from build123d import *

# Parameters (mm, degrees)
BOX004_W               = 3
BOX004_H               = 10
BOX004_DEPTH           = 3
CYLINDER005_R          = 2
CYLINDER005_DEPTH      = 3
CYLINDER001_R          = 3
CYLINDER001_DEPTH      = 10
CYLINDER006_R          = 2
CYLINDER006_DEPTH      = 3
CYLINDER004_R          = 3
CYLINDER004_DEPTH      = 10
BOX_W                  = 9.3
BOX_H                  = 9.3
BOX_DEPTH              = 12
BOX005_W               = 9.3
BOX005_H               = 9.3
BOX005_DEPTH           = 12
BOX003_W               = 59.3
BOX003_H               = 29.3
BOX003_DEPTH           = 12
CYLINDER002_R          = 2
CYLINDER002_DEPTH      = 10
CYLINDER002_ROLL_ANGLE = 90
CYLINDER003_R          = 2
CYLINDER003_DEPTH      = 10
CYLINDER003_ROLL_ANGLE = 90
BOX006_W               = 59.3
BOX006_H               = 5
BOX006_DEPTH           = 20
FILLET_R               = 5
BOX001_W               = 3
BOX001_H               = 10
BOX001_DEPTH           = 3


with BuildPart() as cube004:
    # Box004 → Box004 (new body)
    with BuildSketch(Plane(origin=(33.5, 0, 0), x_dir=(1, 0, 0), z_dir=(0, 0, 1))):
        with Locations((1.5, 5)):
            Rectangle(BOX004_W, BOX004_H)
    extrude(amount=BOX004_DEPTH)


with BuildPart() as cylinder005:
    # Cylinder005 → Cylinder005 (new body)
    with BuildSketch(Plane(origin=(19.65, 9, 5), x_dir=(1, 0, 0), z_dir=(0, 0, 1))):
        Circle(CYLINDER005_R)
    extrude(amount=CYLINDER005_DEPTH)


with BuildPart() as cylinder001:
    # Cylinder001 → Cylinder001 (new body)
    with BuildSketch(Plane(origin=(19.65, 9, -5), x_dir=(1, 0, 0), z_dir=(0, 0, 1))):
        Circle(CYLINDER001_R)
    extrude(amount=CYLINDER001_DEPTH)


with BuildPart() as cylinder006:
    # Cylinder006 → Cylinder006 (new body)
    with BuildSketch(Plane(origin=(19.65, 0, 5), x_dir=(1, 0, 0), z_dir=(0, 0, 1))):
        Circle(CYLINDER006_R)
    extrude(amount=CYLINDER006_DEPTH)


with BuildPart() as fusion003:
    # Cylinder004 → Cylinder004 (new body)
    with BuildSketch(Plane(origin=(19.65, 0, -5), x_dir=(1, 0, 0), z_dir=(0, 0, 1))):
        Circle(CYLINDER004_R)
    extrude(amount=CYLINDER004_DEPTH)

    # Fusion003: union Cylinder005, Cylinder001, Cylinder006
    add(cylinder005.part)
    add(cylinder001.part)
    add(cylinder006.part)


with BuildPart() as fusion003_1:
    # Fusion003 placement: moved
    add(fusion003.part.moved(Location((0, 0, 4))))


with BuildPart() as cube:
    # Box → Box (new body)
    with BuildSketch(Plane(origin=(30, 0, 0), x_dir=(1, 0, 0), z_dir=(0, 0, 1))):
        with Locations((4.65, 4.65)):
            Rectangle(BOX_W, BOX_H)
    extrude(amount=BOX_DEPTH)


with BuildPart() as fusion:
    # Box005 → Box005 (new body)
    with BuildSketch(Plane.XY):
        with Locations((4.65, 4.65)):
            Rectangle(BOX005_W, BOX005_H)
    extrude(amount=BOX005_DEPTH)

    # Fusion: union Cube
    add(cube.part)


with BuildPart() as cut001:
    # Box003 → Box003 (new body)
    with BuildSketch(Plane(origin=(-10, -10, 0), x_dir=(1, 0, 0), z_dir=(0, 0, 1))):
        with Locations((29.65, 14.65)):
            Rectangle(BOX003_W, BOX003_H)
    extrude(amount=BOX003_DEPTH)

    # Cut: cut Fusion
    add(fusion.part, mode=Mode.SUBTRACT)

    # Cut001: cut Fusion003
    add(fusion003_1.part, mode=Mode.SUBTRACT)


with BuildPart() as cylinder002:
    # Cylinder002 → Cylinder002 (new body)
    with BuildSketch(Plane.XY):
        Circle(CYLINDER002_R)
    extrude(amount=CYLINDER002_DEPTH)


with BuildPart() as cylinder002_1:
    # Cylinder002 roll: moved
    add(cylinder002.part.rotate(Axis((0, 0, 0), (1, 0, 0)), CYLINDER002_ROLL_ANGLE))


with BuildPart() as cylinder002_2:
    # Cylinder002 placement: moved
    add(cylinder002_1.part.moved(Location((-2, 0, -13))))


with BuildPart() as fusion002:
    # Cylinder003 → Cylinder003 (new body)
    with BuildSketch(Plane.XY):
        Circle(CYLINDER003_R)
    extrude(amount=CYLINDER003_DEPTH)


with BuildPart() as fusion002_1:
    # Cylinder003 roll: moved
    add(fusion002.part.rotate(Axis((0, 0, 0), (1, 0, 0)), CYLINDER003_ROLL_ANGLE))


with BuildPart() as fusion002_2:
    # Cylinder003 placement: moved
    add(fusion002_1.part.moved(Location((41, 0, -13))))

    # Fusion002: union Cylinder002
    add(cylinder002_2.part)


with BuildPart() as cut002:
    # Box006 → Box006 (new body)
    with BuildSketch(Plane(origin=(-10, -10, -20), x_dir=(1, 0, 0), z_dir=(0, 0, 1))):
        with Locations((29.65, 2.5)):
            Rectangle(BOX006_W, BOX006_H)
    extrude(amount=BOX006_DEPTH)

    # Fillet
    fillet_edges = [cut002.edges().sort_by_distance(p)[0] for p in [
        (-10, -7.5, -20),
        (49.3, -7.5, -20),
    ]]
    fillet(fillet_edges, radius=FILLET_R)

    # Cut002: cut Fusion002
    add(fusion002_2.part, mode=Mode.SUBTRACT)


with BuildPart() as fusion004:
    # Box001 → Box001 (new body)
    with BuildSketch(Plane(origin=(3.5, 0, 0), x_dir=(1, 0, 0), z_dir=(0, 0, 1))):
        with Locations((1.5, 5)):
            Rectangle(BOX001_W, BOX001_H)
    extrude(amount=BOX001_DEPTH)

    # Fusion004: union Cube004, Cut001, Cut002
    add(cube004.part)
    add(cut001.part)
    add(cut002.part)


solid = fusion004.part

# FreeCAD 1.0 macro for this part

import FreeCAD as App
import Part
import Sketcher
from FreeCAD import Vector
Q = App.Units.Quantity


def edges_at(feature, points):
    """Names of the edges that pass closest to the given points."""
    edges = feature.Shape.Edges
    near = lambda p: min(range(len(edges)), key=lambda i: edges[i].distToShape(Part.Vertex(*p))[0])
    return sorted({f"Edge{near(p) + 1}" for p in points})


def add_polygon(sketch, points):
    """Adds a closed chain of lines whose ends are joined by coincident constraints."""
    first, n = sketch.GeometryCount, len(points)
    for a, b in zip(points, points[1:] + points[:1]):
        sketch.addGeometry(Part.LineSegment(App.Vector(*a, 0), App.Vector(*b, 0)), False)
    for i in range(n):
        sketch.addConstraint(Sketcher.Constraint("Coincident", first + i, 2, first + (i + 1) % n, 1))

doc = App.newDocument("Part")
params = doc.addObject("Spreadsheet::Sheet", "Params")
for row, (alias, value) in enumerate([
    ("sketch1_width", "3 mm"),
    ("sketch1_height", "10 mm"),
    ("pad1_length", "3 mm"),
    ("sketch2_diameter", "4 mm"),
    ("pad2_length", "3 mm"),
    ("sketch3_diameter", "6 mm"),
    ("pad3_length", "10 mm"),
    ("sketch4_diameter", "4 mm"),
    ("pad4_length", "3 mm"),
    ("sketch5_diameter", "6 mm"),
    ("pad5_length", "10 mm"),
    ("sketch6_width", "9.3 mm"),
    ("pad6_length", "12 mm"),
    ("sketch7_width", "9.3 mm"),
    ("pad7_length", "12 mm"),
    ("sketch8_width", "59.3 mm"),
    ("sketch8_height", "29.3 mm"),
    ("pad8_length", "12 mm"),
    ("sketch9_diameter", "4 mm"),
    ("pad9_length", "10 mm"),
    ("sketch10_diameter", "4 mm"),
    ("pad10_length", "10 mm"),
    ("sketch11_height", "5 mm"),
    ("sketch11_width", "59.3 mm"),
    ("pad11_length", "20 mm"),
    ("fillet_radius", "5 mm"),
    ("sketch12_width", "3 mm"),
    ("sketch12_height", "10 mm"),
    ("pad12_length", "3 mm"),
], start=1):
    params.set(f"A{row}", alias)
    params.set(f"B{row}", "=" + value)
    params.setAlias(f"B{row}", alias)

body = doc.addObject("PartDesign::Body", "Body")

sketch1 = doc.addObject("Sketcher::SketchObject", "Sketch")
body.addObject(sketch1)
sketch1.AttachmentSupport = (doc.XY_Plane, [""])
sketch1.MapMode = "FlatFace"
add_polygon(sketch1, [(33.5, 10), (33.5, 0), (36.5, 0), (36.5, 10)])
sketch1.addConstraint([
    Sketcher.Constraint("Vertical", 0),
    Sketcher.Constraint("Horizontal", 1),
    Sketcher.Constraint("Vertical", 2),
    Sketcher.Constraint("Horizontal", 3),
    Sketcher.Constraint("PointOnObject", 0, 2, -1),
    Sketcher.Constraint("DistanceX", 1, 1, 1, 2, Q("3 mm")),
    Sketcher.Constraint("DistanceY", 0, 2, 0, 1, Q("10 mm")),
    Sketcher.Constraint("DistanceX", -1, 1, 0, 2, Q("33.5 mm")),
])
sketch1.setExpression("Constraints[9]", "Params.sketch1_width")
sketch1.setExpression("Constraints[10]", "Params.sketch1_height")
pad1 = doc.addObject("PartDesign::Pad", "Pad")
body.addObject(pad1)
pad1.Profile = sketch1
pad1.setExpression("Length", "Params.pad1_length")
body2 = doc.addObject("PartDesign::Body", "Body001")

sketch2 = doc.addObject("Sketcher::SketchObject", "Sketch001")
body2.addObject(sketch2)
sketch2.AttachmentSupport = (doc.getObject("XY_Plane001"), [""])
sketch2.MapMode = "FlatFace"
sketch2.AttachmentOffset = App.Placement(Vector(0, 0, 5), App.Rotation())
sketch2.addGeometry(Part.Circle(Vector(19.6, 9, 0), Vector(0, 0, 1), 2), False)
sketch2.addConstraint([
    Sketcher.Constraint("Diameter", 0, Q("4 mm")),
    Sketcher.Constraint("DistanceY", -1, 1, 0, 3, Q("9 mm")),
    Sketcher.Constraint("DistanceX", -1, 1, 0, 3, Q("19.65 mm")),
])
sketch2.setExpression("Constraints[0]", "Params.sketch2_diameter")
pad2 = doc.addObject("PartDesign::Pad", "Pad001")
body2.addObject(pad2)
pad2.Profile = sketch2
pad2.setExpression("Length", "Params.pad2_length")
body3 = doc.addObject("PartDesign::Body", "Body002")

sketch3 = doc.addObject("Sketcher::SketchObject", "Sketch002")
body3.addObject(sketch3)
sketch3.AttachmentSupport = (doc.getObject("XY_Plane002"), [""])
sketch3.MapMode = "FlatFace"
sketch3.AttachmentOffset = App.Placement(Vector(0, 0, -5), App.Rotation())
sketch3.addGeometry(Part.Circle(Vector(19.6, 9, 0), Vector(0, 0, 1), 3), False)
sketch3.addConstraint([
    Sketcher.Constraint("Diameter", 0, Q("6 mm")),
    Sketcher.Constraint("DistanceY", -1, 1, 0, 3, Q("9 mm")),
    Sketcher.Constraint("DistanceX", -1, 1, 0, 3, Q("19.65 mm")),
])
sketch3.setExpression("Constraints[0]", "Params.sketch3_diameter")
pad3 = doc.addObject("PartDesign::Pad", "Pad002")
body3.addObject(pad3)
pad3.Profile = sketch3
pad3.setExpression("Length", "Params.pad3_length")
body4 = doc.addObject("PartDesign::Body", "Body003")

sketch4 = doc.addObject("Sketcher::SketchObject", "Sketch003")
body4.addObject(sketch4)
sketch4.AttachmentSupport = (doc.getObject("XY_Plane003"), [""])
sketch4.MapMode = "FlatFace"
sketch4.AttachmentOffset = App.Placement(Vector(0, 0, 5), App.Rotation())
sketch4.addGeometry(Part.Circle(Vector(19.6, 0, 0), Vector(0, 0, 1), 2), False)
sketch4.addConstraint([
    Sketcher.Constraint("PointOnObject", 0, 3, -1),
    Sketcher.Constraint("Diameter", 0, Q("4 mm")),
    Sketcher.Constraint("DistanceX", -1, 1, 0, 3, Q("19.65 mm")),
])
sketch4.setExpression("Constraints[1]", "Params.sketch4_diameter")
pad4 = doc.addObject("PartDesign::Pad", "Pad003")
body4.addObject(pad4)
pad4.Profile = sketch4
pad4.setExpression("Length", "Params.pad4_length")
body5 = doc.addObject("PartDesign::Body", "Body004")
body5.AllowCompound = True

sketch5 = doc.addObject("Sketcher::SketchObject", "Sketch004")
body5.addObject(sketch5)
sketch5.AttachmentSupport = (doc.getObject("XY_Plane004"), [""])
sketch5.MapMode = "FlatFace"
sketch5.AttachmentOffset = App.Placement(Vector(0, 0, -5), App.Rotation())
sketch5.addGeometry(Part.Circle(Vector(19.6, 0, 0), Vector(0, 0, 1), 3), False)
sketch5.addConstraint([
    Sketcher.Constraint("PointOnObject", 0, 3, -1),
    Sketcher.Constraint("Diameter", 0, Q("6 mm")),
    Sketcher.Constraint("DistanceX", -1, 1, 0, 3, Q("19.65 mm")),
])
sketch5.setExpression("Constraints[1]", "Params.sketch5_diameter")
pad5 = doc.addObject("PartDesign::Pad", "Pad004")
body5.addObject(pad5)
pad5.Profile = sketch5
pad5.setExpression("Length", "Params.pad5_length")
doc.recompute()

boolean = doc.addObject("PartDesign::Boolean", "Boolean")
body5.addObject(boolean)
boolean.Type = "Fuse"
boolean.addObjects([body2])
doc.recompute()

boolean2 = doc.addObject("PartDesign::Boolean", "Boolean001")
body5.addObject(boolean2)
boolean2.Type = "Fuse"
boolean2.addObjects([body3])
doc.recompute()

boolean3 = doc.addObject("PartDesign::Boolean", "Boolean002")
body5.addObject(boolean3)
boolean3.Type = "Fuse"
boolean3.addObjects([body4])
body6 = doc.addObject("PartDesign::Body", "Body005")
body6.AllowCompound = True
doc.recompute()

body5.Placement = App.Placement(Vector(0, 0, 4), App.Rotation(Vector(0, 0, 1), 0))
boolean4 = doc.addObject("PartDesign::Boolean", "Boolean003")
body6.addObject(boolean4)
boolean4.Type = "Fuse"
boolean4.addObjects([body5])
body7 = doc.addObject("PartDesign::Body", "Body006")

sketch6 = doc.addObject("Sketcher::SketchObject", "Sketch005")
body7.addObject(sketch6)
sketch6.AttachmentSupport = (doc.getObject("XY_Plane006"), [""])
sketch6.MapMode = "FlatFace"
add_polygon(sketch6, [(30, 9), (30, 0), (39, 0), (39, 9)])
sketch6.addConstraint([
    Sketcher.Constraint("Vertical", 0),
    Sketcher.Constraint("Horizontal", 1),
    Sketcher.Constraint("Vertical", 2),
    Sketcher.Constraint("Horizontal", 3),
    Sketcher.Constraint("PointOnObject", 0, 2, -1),
    Sketcher.Constraint("Equal", 3, 0),
    Sketcher.Constraint("DistanceX", 1, 1, 1, 2, Q("9.3 mm")),
    Sketcher.Constraint("DistanceX", -1, 1, 0, 2, Q("30 mm")),
])
sketch6.setExpression("Constraints[10]", "Params.sketch6_width")
pad6 = doc.addObject("PartDesign::Pad", "Pad005")
body7.addObject(pad6)
pad6.Profile = sketch6
pad6.setExpression("Length", "Params.pad6_length")
body8 = doc.addObject("PartDesign::Body", "Body007")
body8.AllowCompound = True

sketch7 = doc.addObject("Sketcher::SketchObject", "Sketch006")
body8.addObject(sketch7)
sketch7.AttachmentSupport = (doc.getObject("XY_Plane007"), [""])
sketch7.MapMode = "FlatFace"
add_polygon(sketch7, [(0, 9), (0, 0), (9, 0), (9, 9)])
sketch7.addConstraint([
    Sketcher.Constraint("Vertical", 0),
    Sketcher.Constraint("Horizontal", 1),
    Sketcher.Constraint("Vertical", 2),
    Sketcher.Constraint("Horizontal", 3),
    Sketcher.Constraint("Coincident", 0, 2, -1, 1),
    Sketcher.Constraint("Equal", 3, 0),
    Sketcher.Constraint("DistanceX", 1, 1, 1, 2, Q("9.3 mm")),
])
sketch7.setExpression("Constraints[10]", "Params.sketch7_width")
pad7 = doc.addObject("PartDesign::Pad", "Pad006")
body8.addObject(pad7)
pad7.Profile = sketch7
pad7.setExpression("Length", "Params.pad7_length")
doc.recompute()

boolean5 = doc.addObject("PartDesign::Boolean", "Boolean004")
body8.addObject(boolean5)
boolean5.Type = "Fuse"
boolean5.addObjects([body7])
body9 = doc.addObject("PartDesign::Body", "Body008")

sketch8 = doc.addObject("Sketcher::SketchObject", "Sketch007")
body9.addObject(sketch8)
sketch8.AttachmentSupport = (doc.getObject("XY_Plane008"), [""])
sketch8.MapMode = "FlatFace"
add_polygon(sketch8, [(-10, 19), (-10, -10), (49, -10), (49, 19)])
sketch8.addConstraint([
    Sketcher.Constraint("Vertical", 0),
    Sketcher.Constraint("Horizontal", 1),
    Sketcher.Constraint("Vertical", 2),
    Sketcher.Constraint("Horizontal", 3),
    Sketcher.Constraint("DistanceX", 1, 1, 1, 2, Q("59.3 mm")),
    Sketcher.Constraint("DistanceY", 0, 2, 0, 1, Q("29.3 mm")),
    Sketcher.Constraint("DistanceX", 0, 2, -1, 1, Q("10 mm")),
    Sketcher.Constraint("DistanceY", 0, 2, -1, 1, Q("10 mm")),
])
sketch8.setExpression("Constraints[8]", "Params.sketch8_width")
sketch8.setExpression("Constraints[9]", "Params.sketch8_height")
pad8 = doc.addObject("PartDesign::Pad", "Pad007")
body9.addObject(pad8)
pad8.Profile = sketch8
pad8.setExpression("Length", "Params.pad8_length")
doc.recompute()

boolean6 = doc.addObject("PartDesign::Boolean", "Boolean005")
body9.addObject(boolean6)
boolean6.Type = "Cut"
boolean6.addObjects([body8])
doc.recompute()

boolean7 = doc.addObject("PartDesign::Boolean", "Boolean006")
body9.addObject(boolean7)
boolean7.Type = "Cut"
boolean7.addObjects([body6])
body10 = doc.addObject("PartDesign::Body", "Body009")

sketch9 = doc.addObject("Sketcher::SketchObject", "Sketch008")
body10.addObject(sketch9)
sketch9.AttachmentSupport = (doc.getObject("XY_Plane009"), [""])
sketch9.MapMode = "FlatFace"
sketch9.addGeometry(Part.Circle(Vector(0, 0, 0), Vector(0, 0, 1), 2), False)
sketch9.addConstraint([
    Sketcher.Constraint("Coincident", 0, 3, -1, 1),
    Sketcher.Constraint("Diameter", 0, Q("4 mm")),
])
sketch9.setExpression("Constraints[1]", "Params.sketch9_diameter")
pad9 = doc.addObject("PartDesign::Pad", "Pad008")
body10.addObject(pad9)
pad9.Profile = sketch9
pad9.setExpression("Length", "Params.pad9_length")
body11 = doc.addObject("PartDesign::Body", "Body010")
doc.recompute()

body10.Placement = App.Placement(Vector(0, 0, 0), App.Rotation(Vector(1, 0, 0), 90))
boolean8 = doc.addObject("PartDesign::Boolean", "Boolean007")
body11.addObject(boolean8)
boolean8.Type = "Fuse"
boolean8.addObjects([body10])
body12 = doc.addObject("PartDesign::Body", "Body011")
doc.recompute()

body11.Placement = App.Placement(Vector(-2, 0, -13), App.Rotation(Vector(0, 0, 1), 0))
boolean9 = doc.addObject("PartDesign::Boolean", "Boolean008")
body12.addObject(boolean9)
boolean9.Type = "Fuse"
boolean9.addObjects([body11])
body13 = doc.addObject("PartDesign::Body", "Body012")

sketch10 = doc.addObject("Sketcher::SketchObject", "Sketch009")
body13.addObject(sketch10)
sketch10.AttachmentSupport = (doc.getObject("XY_Plane012"), [""])
sketch10.MapMode = "FlatFace"
sketch10.addGeometry(Part.Circle(Vector(0, 0, 0), Vector(0, 0, 1), 2), False)
sketch10.addConstraint([
    Sketcher.Constraint("Coincident", 0, 3, -1, 1),
    Sketcher.Constraint("Diameter", 0, Q("4 mm")),
])
sketch10.setExpression("Constraints[1]", "Params.sketch10_diameter")
pad10 = doc.addObject("PartDesign::Pad", "Pad009")
body13.addObject(pad10)
pad10.Profile = sketch10
pad10.setExpression("Length", "Params.pad10_length")
body14 = doc.addObject("PartDesign::Body", "Body013")
doc.recompute()

body13.Placement = App.Placement(Vector(0, 0, 0), App.Rotation(Vector(1, 0, 0), 90))
boolean10 = doc.addObject("PartDesign::Boolean", "Boolean009")
body14.addObject(boolean10)
boolean10.Type = "Fuse"
boolean10.addObjects([body13])
body15 = doc.addObject("PartDesign::Body", "Body014")
body15.AllowCompound = True
doc.recompute()

body14.Placement = App.Placement(Vector(41, 0, -13), App.Rotation(Vector(0, 0, 1), 0))
boolean11 = doc.addObject("PartDesign::Boolean", "Boolean010")
body15.addObject(boolean11)
boolean11.Type = "Fuse"
boolean11.addObjects([body14])
doc.recompute()

boolean12 = doc.addObject("PartDesign::Boolean", "Boolean011")
body15.addObject(boolean12)
boolean12.Type = "Fuse"
boolean12.addObjects([body12])
body16 = doc.addObject("PartDesign::Body", "Body015")

sketch11 = doc.addObject("Sketcher::SketchObject", "Sketch010")
body16.addObject(sketch11)
sketch11.AttachmentSupport = (doc.getObject("XY_Plane015"), [""])
sketch11.MapMode = "FlatFace"
sketch11.AttachmentOffset = App.Placement(Vector(0, 0, -20), App.Rotation())
add_polygon(sketch11, [(-10, -5), (-10, -10), (49, -10), (49, -5)])
sketch11.addConstraint([
    Sketcher.Constraint("Vertical", 0),
    Sketcher.Constraint("Horizontal", 1),
    Sketcher.Constraint("Vertical", 2),
    Sketcher.Constraint("Horizontal", 3),
    Sketcher.Constraint("DistanceY", 0, 2, 0, 1, Q("5 mm")),
    Sketcher.Constraint("DistanceX", 1, 1, 1, 2, Q("59.3 mm")),
    Sketcher.Constraint("DistanceX", 0, 2, -1, 1, Q("10 mm")),
    Sketcher.Constraint("DistanceY", 0, 2, -1, 1, Q("10 mm")),
])
sketch11.setExpression("Constraints[8]", "Params.sketch11_height")
sketch11.setExpression("Constraints[9]", "Params.sketch11_width")
pad11 = doc.addObject("PartDesign::Pad", "Pad010")
body16.addObject(pad11)
pad11.Profile = sketch11
pad11.setExpression("Length", "Params.pad11_length")
doc.recompute()

fillet = doc.addObject("PartDesign::Fillet", "Fillet")
body16.addObject(fillet)
fillet.Base = (pad11, edges_at(pad11, [(-10, -7.5, -20), (49.3, -7.5, -20)]))
fillet.setExpression("Radius", "Params.fillet_radius")
doc.recompute()

boolean13 = doc.addObject("PartDesign::Boolean", "Boolean012")
body16.addObject(boolean13)
boolean13.Type = "Cut"
boolean13.addObjects([body15])
body17 = doc.addObject("PartDesign::Body", "Body016")
body17.AllowCompound = True

sketch12 = doc.addObject("Sketcher::SketchObject", "Sketch011")
body17.addObject(sketch12)
sketch12.AttachmentSupport = (doc.getObject("XY_Plane016"), [""])
sketch12.MapMode = "FlatFace"
add_polygon(sketch12, [(3.5, 10), (3.5, 0), (6.5, 0), (6.5, 10)])
sketch12.addConstraint([
    Sketcher.Constraint("Vertical", 0),
    Sketcher.Constraint("Horizontal", 1),
    Sketcher.Constraint("Vertical", 2),
    Sketcher.Constraint("Horizontal", 3),
    Sketcher.Constraint("PointOnObject", 0, 2, -1),
    Sketcher.Constraint("DistanceX", 1, 1, 1, 2, Q("3 mm")),
    Sketcher.Constraint("DistanceY", 0, 2, 0, 1, Q("10 mm")),
    Sketcher.Constraint("DistanceX", -1, 1, 0, 2, Q("3.5 mm")),
])
sketch12.setExpression("Constraints[9]", "Params.sketch12_width")
sketch12.setExpression("Constraints[10]", "Params.sketch12_height")
pad12 = doc.addObject("PartDesign::Pad", "Pad011")
body17.addObject(pad12)
pad12.Profile = sketch12
pad12.setExpression("Length", "Params.pad12_length")
doc.recompute()

boolean14 = doc.addObject("PartDesign::Boolean", "Boolean013")
body17.addObject(boolean14)
boolean14.Type = "Fuse"
boolean14.addObjects([body])
doc.recompute()

boolean15 = doc.addObject("PartDesign::Boolean", "Boolean014")
body17.addObject(boolean15)
boolean15.Type = "Fuse"
boolean15.addObjects([body9])
doc.recompute()

boolean16 = doc.addObject("PartDesign::Boolean", "Boolean015")
body17.addObject(boolean16)
boolean16.Type = "Fuse"
boolean16.addObjects([body16])

doc.recompute()
